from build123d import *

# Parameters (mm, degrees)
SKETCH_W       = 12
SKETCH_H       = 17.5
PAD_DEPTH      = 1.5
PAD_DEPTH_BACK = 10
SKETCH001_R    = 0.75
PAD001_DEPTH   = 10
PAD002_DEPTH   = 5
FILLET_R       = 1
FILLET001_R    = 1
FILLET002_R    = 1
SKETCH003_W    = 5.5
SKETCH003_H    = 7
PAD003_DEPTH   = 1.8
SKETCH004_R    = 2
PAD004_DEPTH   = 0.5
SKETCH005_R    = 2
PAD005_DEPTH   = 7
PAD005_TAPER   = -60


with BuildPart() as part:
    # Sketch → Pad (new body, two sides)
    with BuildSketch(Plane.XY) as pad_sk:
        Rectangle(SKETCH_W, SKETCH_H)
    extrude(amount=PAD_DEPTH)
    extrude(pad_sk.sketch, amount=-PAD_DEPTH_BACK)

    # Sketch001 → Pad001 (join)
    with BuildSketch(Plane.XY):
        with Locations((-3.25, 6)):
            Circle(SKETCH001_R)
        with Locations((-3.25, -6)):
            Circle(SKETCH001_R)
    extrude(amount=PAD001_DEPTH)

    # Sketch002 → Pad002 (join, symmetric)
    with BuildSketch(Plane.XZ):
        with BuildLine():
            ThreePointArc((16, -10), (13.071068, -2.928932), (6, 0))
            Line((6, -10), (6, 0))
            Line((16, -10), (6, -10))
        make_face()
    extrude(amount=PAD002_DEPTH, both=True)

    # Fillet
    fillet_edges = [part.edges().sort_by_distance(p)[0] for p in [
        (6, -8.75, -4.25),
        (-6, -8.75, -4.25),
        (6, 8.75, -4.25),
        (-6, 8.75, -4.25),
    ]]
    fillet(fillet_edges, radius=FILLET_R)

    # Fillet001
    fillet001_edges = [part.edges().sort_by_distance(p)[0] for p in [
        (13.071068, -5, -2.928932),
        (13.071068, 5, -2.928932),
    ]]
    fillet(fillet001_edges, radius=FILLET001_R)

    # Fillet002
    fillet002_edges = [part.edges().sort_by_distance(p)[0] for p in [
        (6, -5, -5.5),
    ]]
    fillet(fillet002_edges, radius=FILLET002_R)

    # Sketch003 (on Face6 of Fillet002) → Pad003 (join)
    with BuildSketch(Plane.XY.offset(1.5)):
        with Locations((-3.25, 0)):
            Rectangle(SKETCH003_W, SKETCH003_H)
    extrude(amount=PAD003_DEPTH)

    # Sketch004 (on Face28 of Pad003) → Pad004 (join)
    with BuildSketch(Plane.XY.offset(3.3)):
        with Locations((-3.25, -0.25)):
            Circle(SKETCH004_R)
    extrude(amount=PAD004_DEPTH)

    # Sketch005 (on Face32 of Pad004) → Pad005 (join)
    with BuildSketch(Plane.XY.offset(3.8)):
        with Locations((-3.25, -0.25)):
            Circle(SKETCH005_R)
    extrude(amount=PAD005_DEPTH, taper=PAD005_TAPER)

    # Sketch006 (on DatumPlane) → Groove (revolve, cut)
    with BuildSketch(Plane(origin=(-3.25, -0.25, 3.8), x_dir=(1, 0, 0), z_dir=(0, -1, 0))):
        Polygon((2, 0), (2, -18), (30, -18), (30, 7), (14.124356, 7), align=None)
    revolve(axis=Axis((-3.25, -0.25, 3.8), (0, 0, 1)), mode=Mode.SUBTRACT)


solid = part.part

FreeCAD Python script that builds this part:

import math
import FreeCAD as App
import Part
import Sketcher
from FreeCAD import Vector
Q = App.Units.Quantity


def edges_at(feature, points):
    """Names of the edges that pass closest to the given points."""
    edges = feature.Shape.Edges
    near = lambda p: min(range(len(edges)), key=lambda i: edges[i].distToShape(Part.Vertex(*p))[0])
    return sorted({f"Edge{near(p) + 1}" for p in points})

doc = App.newDocument("Part")
body = doc.addObject("PartDesign::Body", "Body")

sketch1 = body.newObject("Sketcher::SketchObject", "Sketch")
sketch1.AttachmentSupport = (doc.getObject("XY_Plane"), [""])
sketch1.MapMode = "FlatFace"
sketch1.addGeometry([
    Part.LineSegment(Vector(-6, 9, 0), Vector(-6, -9, 0)),
    Part.LineSegment(Vector(-6, -9, 0), Vector(6, -9, 0)),
    Part.LineSegment(Vector(6, -9, 0), Vector(6, 9, 0)),
    Part.LineSegment(Vector(6, 9, 0), Vector(-6, 9, 0)),
], False)
sketch1.addConstraint([
    Sketcher.Constraint("Coincident", 0, 2, 1, 1),
    Sketcher.Constraint("Coincident", 1, 2, 2, 1),
    Sketcher.Constraint("Coincident", 2, 2, 3, 1),
    Sketcher.Constraint("Coincident", 3, 2, 0, 1),
    Sketcher.Constraint("Vertical", 0),
    Sketcher.Constraint("Horizontal", 1),
    Sketcher.Constraint("Vertical", 2),
    Sketcher.Constraint("Horizontal", 3),
    Sketcher.Constraint("Symmetric", 0, 2, 2, 2, -1, 1),
    Sketcher.Constraint("DistanceX", 1, 1, 1, 2, 12.0),
    Sketcher.Constraint("DistanceY", 0, 2, 0, 1, 17.5),
])
pad1 = body.newObject("PartDesign::Pad", "Pad")
pad1.Profile = sketch1
pad1.Type = "TwoLengths"
pad1.Length = 1.5
pad1.Length2 = 10

sketch2 = body.newObject("Sketcher::SketchObject", "Sketch001")
sketch2.AttachmentSupport = (doc.getObject("XY_Plane"), [""])
sketch2.MapMode = "FlatFace"
sketch2.addGeometry([
    Part.Circle(Vector(-3.2, 6, 0), Vector(0, 0, 1), 0.8),
    Part.Circle(Vector(-3.2, -6, 0), Vector(0, 0, 1), 0.8),
], False)
sketch2.addConstraint([
    Sketcher.Constraint("Equal", 0, 1),
    Sketcher.Constraint("Symmetric", 0, 3, 1, 3, -1),
    Sketcher.Constraint("Diameter", 0, 1.5),
    Sketcher.Constraint("DistanceY", -1, 1, 0, 3, 6.0),
    Sketcher.Constraint("DistanceX", 0, 3, -1, 1, 3.25),
])
pad2 = body.newObject("PartDesign::Pad", "Pad001")
pad2.Profile = sketch2
pad2.Length = 10

sketch3 = body.newObject("Sketcher::SketchObject", "Sketch002")
sketch3.AttachmentSupport = (doc.getObject("XZ_Plane"), [""])
sketch3.MapMode = "FlatFace"
sketch3.addGeometry([
    Part.ArcOfCircle(Part.Circle(Vector(6, -10, 0), Vector(0, 0, 1), 10), math.radians(0), math.radians(90)),
    Part.LineSegment(Vector(6, 0, 0), Vector(6, -10, 0)),
    Part.LineSegment(Vector(6, -10, 0), Vector(16, -10, 0)),
], False)
sketch3.addConstraint([
    Sketcher.Constraint("Coincident", 0, 2, 1, 1),
    Sketcher.Constraint("Coincident", 1, 2, 2, 1),
    Sketcher.Constraint("Coincident", 2, 2, 0, 1),
    Sketcher.Constraint("Vertical", 1),
    Sketcher.Constraint("Horizontal", 2),
    Sketcher.Constraint("Coincident", 1, 2, 0, 3),
    Sketcher.Constraint("PointOnObject", 0, 2, -1),
    Sketcher.Constraint("Radius", 0, 9.999999),
    Sketcher.Constraint("DistanceX", -1, 1, 0, 3, 6.000001),
])
pad3 = body.newObject("PartDesign::Pad", "Pad002")
pad3.Profile = sketch3
pad3.Length = 10
pad3.Midplane = True
doc.recompute()

fillet = body.newObject("PartDesign::Fillet", "Fillet")
fillet.Base = (pad3, edges_at(pad3, [
    (6, -8.75, -4.25),
    (-6, -8.75, -4.25),
    (6, 8.75, -4.25),
    (-6, 8.75, -4.25),
]))
fillet.Radius = 1
doc.recompute()

fillet2 = body.newObject("PartDesign::Fillet", "Fillet001")
fillet2.Base = (fillet, edges_at(fillet, [(13.071, -5, -2.929), (13.071, 5, -2.929)]))
fillet2.Radius = 1
doc.recompute()

fillet3 = body.newObject("PartDesign::Fillet", "Fillet002")
fillet3.Base = (fillet2, edges_at(fillet2, [(6, -5, -5.5)]))
fillet3.Radius = 1

sketch4 = body.newObject("Sketcher::SketchObject", "Sketch003")
sketch4.AttachmentSupport = (doc.getObject("XY_Plane"), [""])
sketch4.MapMode = "FlatFace"
sketch4.AttachmentOffset = App.Placement(Vector(0, 0, 1.5), App.Rotation())
sketch4.addGeometry([
    Part.LineSegment(Vector(-6, 4, 0), Vector(-6, -4, 0)),
    Part.LineSegment(Vector(-6, -4, 0), Vector(0, -4, 0)),
    Part.LineSegment(Vector(0, -4, 0), Vector(0, 4, 0)),
    Part.LineSegment(Vector(0, 4, 0), Vector(-6, 4, 0)),
], False)
sketch4.addConstraint([
    Sketcher.Constraint("Coincident", 0, 2, 1, 1),
    Sketcher.Constraint("Coincident", 1, 2, 2, 1),
    Sketcher.Constraint("Coincident", 2, 2, 3, 1),
    Sketcher.Constraint("Coincident", 3, 2, 0, 1),
    Sketcher.Constraint("Vertical", 0),
    Sketcher.Constraint("Horizontal", 1),
    Sketcher.Constraint("Vertical", 2),
    Sketcher.Constraint("Horizontal", 3),
    Sketcher.Constraint("DistanceY", 0, 2, 0, 1, 7.0),
    Sketcher.Constraint("DistanceX", 1, 1, 1, 2, 5.5),
    Sketcher.Constraint("DistanceX", 0, 2, -1, 1, 6.0),
    Sketcher.Constraint("DistanceY", 0, 2, -1, 1, 3.5),
])
pad4 = body.newObject("PartDesign::Pad", "Pad003")
pad4.Profile = sketch4
pad4.Length = 1.8

sketch5 = body.newObject("Sketcher::SketchObject", "Sketch004")
sketch5.AttachmentSupport = (doc.getObject("XY_Plane"), [""])
sketch5.MapMode = "FlatFace"
sketch5.AttachmentOffset = App.Placement(Vector(0, 0, 3.3), App.Rotation())
sketch5.addGeometry(Part.Circle(Vector(-3.2, -0.2, 0), Vector(0, 0, 1), 2), False)
sketch5.addConstraint([
    Sketcher.Constraint("Diameter", 0, 4.0),
    Sketcher.Constraint("DistanceX", 0, 3, -1, 1, 3.25),
    Sketcher.Constraint("DistanceY", 0, 3, -1, 1, 0.25),
])
pad5 = body.newObject("PartDesign::Pad", "Pad004")
pad5.Profile = sketch5
pad5.Length = 0.5

sketch6 = body.newObject("Sketcher::SketchObject", "Sketch005")
sketch6.AttachmentSupport = (doc.getObject("XY_Plane"), [""])
sketch6.MapMode = "FlatFace"
sketch6.AttachmentOffset = App.Placement(Vector(0, 0, 3.8), App.Rotation())
sketch6.addGeometry(Part.Circle(Vector(-3.2, -0.2, 0), Vector(0, 0, 1), 2), False)
sketch6.addConstraint([
    Sketcher.Constraint("Diameter", 0, 4.0),
    Sketcher.Constraint("DistanceX", 0, 3, -1, 1, 3.25),
    Sketcher.Constraint("DistanceY", 0, 3, -1, 1, 0.25),
])
pad6 = body.newObject("PartDesign::Pad", "Pad005")
pad6.Profile = sketch6
pad6.Length = 7
pad6.TaperAngle = 60

sketch7 = body.newObject("Sketcher::SketchObject", "Sketch006")
sketch7.AttachmentSupport = (doc.getObject("XZ_Plane"), [""])
sketch7.MapMode = "FlatFace"
sketch7.AttachmentOffset = App.Placement(Vector(0, 0, 0.25), App.Rotation())
sketch7.addGeometry([
    Part.LineSegment(Vector(-1, 4, 0), Vector(-1, -14, 0)),
    Part.LineSegment(Vector(-1, -14, 0), Vector(27, -14, 0)),
    Part.LineSegment(Vector(27, -14, 0), Vector(27, 11, 0)),
    Part.LineSegment(Vector(27, 11, 0), Vector(11, 11, 0)),
    Part.LineSegment(Vector(11, 11, 0), Vector(-1, 4, 0)),
], False)
sketch7.addGeometry(Part.LineSegment(Vector(-3, -14, 0), Vector(-3, 11, 0)), True)
sketch7.addConstraint([
    Sketcher.Constraint("Coincident", 0, 2, 1, 1),
    Sketcher.Constraint("Coincident", 1, 2, 2, 1),
    Sketcher.Constraint("Coincident", 2, 2, 3, 1),
    Sketcher.Constraint("Coincident", 3, 2, 4, 1),
    Sketcher.Constraint("Coincident", 4, 2, 0, 1),
    Sketcher.Constraint("Vertical", 0),
    Sketcher.Constraint("Horizontal", 1),
    Sketcher.Constraint("Vertical", 2),
    Sketcher.Constraint("Horizontal", 3),
    Sketcher.Constraint("Vertical", 5),
    Sketcher.Constraint("Horizontal", 1, 2, 5, 1),
    Sketcher.Constraint("Horizontal", 3, 2, 5, 2),
    Sketcher.Constraint("DistanceX", 1, 1, 1, 2, 28.0),
    Sketcher.Constraint("DistanceY", 0, 2, 0, 1, 18.0),
    Sketcher.Constraint("DistanceY", 2, 1, 2, 2, 25.0),
    Sketcher.Constraint("Angle", 4, Q("-150.000001 deg")),
    Sketcher.Constraint("DistanceX", 5, 1, 0, 2, 2.0),
    Sketcher.Constraint("DistanceY", 0, 2, -1, 1, 14.2),
    Sketcher.Constraint("DistanceX", 0, 2, -1, 1, 1.25),
])
groove = body.newObject("PartDesign::Groove", "Groove")
groove.Profile = sketch7
groove.ReferenceAxis = (sketch7, ["Axis0"])
groove.Angle = 360

doc.recompute()
